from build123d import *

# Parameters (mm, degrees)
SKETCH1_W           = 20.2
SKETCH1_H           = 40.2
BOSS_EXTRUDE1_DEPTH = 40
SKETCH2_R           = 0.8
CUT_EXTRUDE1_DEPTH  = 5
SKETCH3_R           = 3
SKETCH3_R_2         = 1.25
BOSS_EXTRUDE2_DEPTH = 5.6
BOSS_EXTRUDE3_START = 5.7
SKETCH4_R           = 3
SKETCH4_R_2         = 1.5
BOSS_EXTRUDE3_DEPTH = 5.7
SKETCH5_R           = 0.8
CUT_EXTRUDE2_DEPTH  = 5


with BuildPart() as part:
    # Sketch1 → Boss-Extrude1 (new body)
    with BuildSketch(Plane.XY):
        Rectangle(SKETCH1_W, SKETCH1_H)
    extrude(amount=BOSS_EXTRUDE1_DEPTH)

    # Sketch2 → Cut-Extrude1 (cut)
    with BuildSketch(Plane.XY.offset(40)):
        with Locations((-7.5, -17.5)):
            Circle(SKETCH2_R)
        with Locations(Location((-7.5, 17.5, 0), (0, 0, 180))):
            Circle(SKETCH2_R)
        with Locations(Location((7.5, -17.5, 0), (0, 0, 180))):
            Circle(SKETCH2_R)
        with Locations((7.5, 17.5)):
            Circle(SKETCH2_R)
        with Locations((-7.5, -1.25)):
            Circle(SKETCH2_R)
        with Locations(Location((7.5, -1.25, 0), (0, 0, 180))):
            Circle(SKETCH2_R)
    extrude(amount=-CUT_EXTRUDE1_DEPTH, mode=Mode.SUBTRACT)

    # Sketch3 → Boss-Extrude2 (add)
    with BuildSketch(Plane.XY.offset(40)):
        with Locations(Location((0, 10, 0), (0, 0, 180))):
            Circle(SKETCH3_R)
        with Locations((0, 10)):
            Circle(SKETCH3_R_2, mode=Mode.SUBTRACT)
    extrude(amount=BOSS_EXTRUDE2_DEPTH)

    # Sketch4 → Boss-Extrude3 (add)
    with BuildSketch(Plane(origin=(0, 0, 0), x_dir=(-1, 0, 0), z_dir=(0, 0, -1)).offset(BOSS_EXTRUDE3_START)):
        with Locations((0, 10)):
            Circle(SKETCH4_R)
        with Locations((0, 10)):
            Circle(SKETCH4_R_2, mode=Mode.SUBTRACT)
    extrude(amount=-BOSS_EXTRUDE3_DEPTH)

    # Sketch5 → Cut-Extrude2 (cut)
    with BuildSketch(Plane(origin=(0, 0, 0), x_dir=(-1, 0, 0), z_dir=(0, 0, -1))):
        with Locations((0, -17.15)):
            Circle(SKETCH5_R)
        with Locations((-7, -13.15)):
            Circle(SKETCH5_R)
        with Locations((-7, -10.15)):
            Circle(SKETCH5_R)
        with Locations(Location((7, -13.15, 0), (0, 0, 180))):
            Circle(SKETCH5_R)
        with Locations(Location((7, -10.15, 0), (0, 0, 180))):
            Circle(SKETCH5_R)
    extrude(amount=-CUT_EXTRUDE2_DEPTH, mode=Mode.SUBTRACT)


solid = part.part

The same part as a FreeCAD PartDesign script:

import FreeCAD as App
import Part
import Sketcher
Q = App.Units.Quantity

doc = App.newDocument("Part")
body = doc.addObject("PartDesign::Body", "Body")

sketch1 = doc.addObject("Sketcher::SketchObject", "Sketch")
body.addObject(sketch1)
sketch1.AttachmentSupport = (doc.XY_Plane, [""])
sketch1.MapMode = "FlatFace"
sketch1.addGeometry([
    Part.LineSegment(App.Vector(-10, 20, 0), App.Vector(-10, -20, 0)),
    Part.LineSegment(App.Vector(-10, -20, 0), App.Vector(10, -20, 0)),
    Part.LineSegment(App.Vector(10, -20, 0), App.Vector(10, 20, 0)),
    Part.LineSegment(App.Vector(10, 20, 0), App.Vector(-10, 20, 0)),
], False)
sketch1.addConstraint([
    Sketcher.Constraint("Coincident", 0, 2, 1, 1),
    Sketcher.Constraint("Coincident", 1, 2, 2, 1),
    Sketcher.Constraint("Coincident", 2, 2, 3, 1),
    Sketcher.Constraint("Coincident", 3, 2, 0, 1),
    Sketcher.Constraint("Vertical", 0),
    Sketcher.Constraint("Horizontal", 1),
    Sketcher.Constraint("Vertical", 2),
    Sketcher.Constraint("Horizontal", 3),
    Sketcher.Constraint("Symmetric", 0, 2, 2, 2, -1, 1),
    Sketcher.Constraint("DistanceX", 1, 1, 1, 2, Q("20.2 mm")),
    Sketcher.Constraint("DistanceY", 0, 2, 0, 1, Q("40.2 mm")),
])
pad1 = doc.addObject("PartDesign::Pad", "Pad")
body.addObject(pad1)
pad1.Profile = sketch1
pad1.Length = 40

sketch2 = doc.addObject("Sketcher::SketchObject", "Sketch001")
body.addObject(sketch2)
sketch2.AttachmentSupport = (doc.XY_Plane, [""])
sketch2.MapMode = "FlatFace"
sketch2.AttachmentOffset = App.Placement(App.Vector(0, 0, 40), App.Rotation())
sketch2.addGeometry([
    Part.Circle(App.Vector(-7.5, -17.5, 0), App.Vector(0, 0, 1), 0.8),
    Part.Circle(App.Vector(-7.5, 17.5, 0), App.Vector(0, 0, 1), 0.8),
    Part.Circle(App.Vector(7.5, -17.5, 0), App.Vector(0, 0, 1), 0.8),
    Part.Circle(App.Vector(7.5, 17.5, 0), App.Vector(0, 0, 1), 0.8),
    Part.Circle(App.Vector(-7.5, -1.2, 0), App.Vector(0, 0, 1), 0.8),
    Part.Circle(App.Vector(7.5, -1.2, 0), App.Vector(0, 0, 1), 0.8),
], False)
sketch2.addConstraint([
    Sketcher.Constraint("Equal", 0, 1),
    Sketcher.Constraint("Equal", 1, 2),
    Sketcher.Constraint("Equal", 2, 3),
    Sketcher.Constraint("Equal", 3, 4),
    Sketcher.Constraint("Equal", 4, 5),
    Sketcher.Constraint("Symmetric", 1, 3, 2, 3, -1, 1),
    Sketcher.Constraint("Symmetric", 0, 3, 3, 3, -1, 1),
    Sketcher.Constraint("Symmetric", 0, 3, 2, 3, -2),
    Sketcher.Constraint("Symmetric", 4, 3, 5, 3, -2),
    Sketcher.Constraint("Vertical", 1, 3, 4, 3),
    Sketcher.Constraint("Diameter", 0, Q("1.6 mm")),
    Sketcher.Constraint("DistanceY", 0, 3, 1, 3, Q("35 mm")),
    Sketcher.Constraint("DistanceX", 0, 3, 2, 3, Q("15 mm")),
    Sketcher.Constraint("DistanceY", 4, 3, -1, 1, Q("1.25 mm")),
])
pocket1 = doc.addObject("PartDesign::Pocket", "Pocket")
body.addObject(pocket1)
pocket1.Profile = sketch2
pocket1.Length = 5

sketch3 = doc.addObject("Sketcher::SketchObject", "Sketch002")
body.addObject(sketch3)
sketch3.AttachmentSupport = (doc.XY_Plane, [""])
sketch3.MapMode = "FlatFace"
sketch3.AttachmentOffset = App.Placement(App.Vector(0, 0, 40), App.Rotation())
sketch3.addGeometry([
    Part.Circle(App.Vector(0, 10, 0), App.Vector(0, 0, 1), 3),
    Part.Circle(App.Vector(0, 10, 0), App.Vector(0, 0, 1), 1.2),
], False)
sketch3.addConstraint([
    Sketcher.Constraint("Coincident", 1, 3, 0, 3),
    Sketcher.Constraint("PointOnObject", 0, 3, -2),
    Sketcher.Constraint("Diameter", 0, Q("6 mm")),
    Sketcher.Constraint("Diameter", 1, Q("2.5 mm")),
    Sketcher.Constraint("DistanceY", -1, 1, 0, 3, Q("10 mm")),
])
pad2 = doc.addObject("PartDesign::Pad", "Pad001")
body.addObject(pad2)
pad2.Profile = sketch3
pad2.Length = 5.6

sketch4 = doc.addObject("Sketcher::SketchObject", "Sketch003")
body.addObject(sketch4)
sketch4.AttachmentSupport = (doc.XY_Plane, [""])
sketch4.MapMode = "FlatFace"
sketch4.AttachmentOffset = App.Placement(App.Vector(0, 0, -5.7), App.Rotation())
sketch4.addGeometry([
    Part.Circle(App.Vector(0, 10, 0), App.Vector(0, 0, 1), 3),
    Part.Circle(App.Vector(0, 10, 0), App.Vector(0, 0, 1), 1.5),
], False)
sketch4.addConstraint([
    Sketcher.Constraint("Coincident", 1, 3, 0, 3),
    Sketcher.Constraint("PointOnObject", 0, 3, -2),
    Sketcher.Constraint("Diameter", 0, Q("6 mm")),
    Sketcher.Constraint("Diameter", 1, Q("3 mm")),
    Sketcher.Constraint("DistanceY", -1, 1, 0, 3, Q("10 mm")),
])
pad3 = doc.addObject("PartDesign::Pad", "Pad002")
body.addObject(pad3)
pad3.Profile = sketch4
pad3.Length = 5.7

sketch5 = doc.addObject("Sketcher::SketchObject", "Sketch004")
body.addObject(sketch5)
sketch5.AttachmentSupport = (doc.XY_Plane, [""])
sketch5.MapMode = "FlatFace"
sketch5.addGeometry([
    Part.Circle(App.Vector(0, -17.1, 0), App.Vector(0, 0, 1), 0.8),
    Part.Circle(App.Vector(7, -13.2, 0), App.Vector(0, 0, 1), 0.8),
    Part.Circle(App.Vector(7, -10.2, 0), App.Vector(0, 0, 1), 0.8),
    Part.Circle(App.Vector(-7, -13.2, 0), App.Vector(0, 0, 1), 0.8),
    Part.Circle(App.Vector(-7, -10.2, 0), App.Vector(0, 0, 1), 0.8),
], False)
sketch5.addConstraint([
    Sketcher.Constraint("Equal", 0, 1),
    Sketcher.Constraint("Equal", 1, 2),
    Sketcher.Constraint("Equal", 2, 3),
    Sketcher.Constraint("Equal", 3, 4),
    Sketcher.Constraint("Symmetric", 1, 3, 3, 3, -2),
    Sketcher.Constraint("Symmetric", 2, 3, 4, 3, -2),
    Sketcher.Constraint("PointOnObject", 0, 3, -2),
    Sketcher.Constraint("Vertical", 1, 3, 2, 3),
    Sketcher.Constraint("Diameter", 0, Q("1.6 mm")),
    Sketcher.Constraint("DistanceX", -1, 1, 1, 3, Q("7 mm")),
    Sketcher.Constraint("DistanceY", 0, 3, 1, 3, Q("4 mm")),
    Sketcher.Constraint("DistanceY", 1, 3, 2, 3, Q("3 mm")),
    Sketcher.Constraint("DistanceY", 0, 3, -1, 1, Q("17.15 mm")),
])
pocket2 = doc.addObject("PartDesign::Pocket", "Pocket001")
body.addObject(pocket2)
pocket2.Profile = sketch5
pocket2.Length = 5
pocket2.Reversed = True

doc.recompute()
